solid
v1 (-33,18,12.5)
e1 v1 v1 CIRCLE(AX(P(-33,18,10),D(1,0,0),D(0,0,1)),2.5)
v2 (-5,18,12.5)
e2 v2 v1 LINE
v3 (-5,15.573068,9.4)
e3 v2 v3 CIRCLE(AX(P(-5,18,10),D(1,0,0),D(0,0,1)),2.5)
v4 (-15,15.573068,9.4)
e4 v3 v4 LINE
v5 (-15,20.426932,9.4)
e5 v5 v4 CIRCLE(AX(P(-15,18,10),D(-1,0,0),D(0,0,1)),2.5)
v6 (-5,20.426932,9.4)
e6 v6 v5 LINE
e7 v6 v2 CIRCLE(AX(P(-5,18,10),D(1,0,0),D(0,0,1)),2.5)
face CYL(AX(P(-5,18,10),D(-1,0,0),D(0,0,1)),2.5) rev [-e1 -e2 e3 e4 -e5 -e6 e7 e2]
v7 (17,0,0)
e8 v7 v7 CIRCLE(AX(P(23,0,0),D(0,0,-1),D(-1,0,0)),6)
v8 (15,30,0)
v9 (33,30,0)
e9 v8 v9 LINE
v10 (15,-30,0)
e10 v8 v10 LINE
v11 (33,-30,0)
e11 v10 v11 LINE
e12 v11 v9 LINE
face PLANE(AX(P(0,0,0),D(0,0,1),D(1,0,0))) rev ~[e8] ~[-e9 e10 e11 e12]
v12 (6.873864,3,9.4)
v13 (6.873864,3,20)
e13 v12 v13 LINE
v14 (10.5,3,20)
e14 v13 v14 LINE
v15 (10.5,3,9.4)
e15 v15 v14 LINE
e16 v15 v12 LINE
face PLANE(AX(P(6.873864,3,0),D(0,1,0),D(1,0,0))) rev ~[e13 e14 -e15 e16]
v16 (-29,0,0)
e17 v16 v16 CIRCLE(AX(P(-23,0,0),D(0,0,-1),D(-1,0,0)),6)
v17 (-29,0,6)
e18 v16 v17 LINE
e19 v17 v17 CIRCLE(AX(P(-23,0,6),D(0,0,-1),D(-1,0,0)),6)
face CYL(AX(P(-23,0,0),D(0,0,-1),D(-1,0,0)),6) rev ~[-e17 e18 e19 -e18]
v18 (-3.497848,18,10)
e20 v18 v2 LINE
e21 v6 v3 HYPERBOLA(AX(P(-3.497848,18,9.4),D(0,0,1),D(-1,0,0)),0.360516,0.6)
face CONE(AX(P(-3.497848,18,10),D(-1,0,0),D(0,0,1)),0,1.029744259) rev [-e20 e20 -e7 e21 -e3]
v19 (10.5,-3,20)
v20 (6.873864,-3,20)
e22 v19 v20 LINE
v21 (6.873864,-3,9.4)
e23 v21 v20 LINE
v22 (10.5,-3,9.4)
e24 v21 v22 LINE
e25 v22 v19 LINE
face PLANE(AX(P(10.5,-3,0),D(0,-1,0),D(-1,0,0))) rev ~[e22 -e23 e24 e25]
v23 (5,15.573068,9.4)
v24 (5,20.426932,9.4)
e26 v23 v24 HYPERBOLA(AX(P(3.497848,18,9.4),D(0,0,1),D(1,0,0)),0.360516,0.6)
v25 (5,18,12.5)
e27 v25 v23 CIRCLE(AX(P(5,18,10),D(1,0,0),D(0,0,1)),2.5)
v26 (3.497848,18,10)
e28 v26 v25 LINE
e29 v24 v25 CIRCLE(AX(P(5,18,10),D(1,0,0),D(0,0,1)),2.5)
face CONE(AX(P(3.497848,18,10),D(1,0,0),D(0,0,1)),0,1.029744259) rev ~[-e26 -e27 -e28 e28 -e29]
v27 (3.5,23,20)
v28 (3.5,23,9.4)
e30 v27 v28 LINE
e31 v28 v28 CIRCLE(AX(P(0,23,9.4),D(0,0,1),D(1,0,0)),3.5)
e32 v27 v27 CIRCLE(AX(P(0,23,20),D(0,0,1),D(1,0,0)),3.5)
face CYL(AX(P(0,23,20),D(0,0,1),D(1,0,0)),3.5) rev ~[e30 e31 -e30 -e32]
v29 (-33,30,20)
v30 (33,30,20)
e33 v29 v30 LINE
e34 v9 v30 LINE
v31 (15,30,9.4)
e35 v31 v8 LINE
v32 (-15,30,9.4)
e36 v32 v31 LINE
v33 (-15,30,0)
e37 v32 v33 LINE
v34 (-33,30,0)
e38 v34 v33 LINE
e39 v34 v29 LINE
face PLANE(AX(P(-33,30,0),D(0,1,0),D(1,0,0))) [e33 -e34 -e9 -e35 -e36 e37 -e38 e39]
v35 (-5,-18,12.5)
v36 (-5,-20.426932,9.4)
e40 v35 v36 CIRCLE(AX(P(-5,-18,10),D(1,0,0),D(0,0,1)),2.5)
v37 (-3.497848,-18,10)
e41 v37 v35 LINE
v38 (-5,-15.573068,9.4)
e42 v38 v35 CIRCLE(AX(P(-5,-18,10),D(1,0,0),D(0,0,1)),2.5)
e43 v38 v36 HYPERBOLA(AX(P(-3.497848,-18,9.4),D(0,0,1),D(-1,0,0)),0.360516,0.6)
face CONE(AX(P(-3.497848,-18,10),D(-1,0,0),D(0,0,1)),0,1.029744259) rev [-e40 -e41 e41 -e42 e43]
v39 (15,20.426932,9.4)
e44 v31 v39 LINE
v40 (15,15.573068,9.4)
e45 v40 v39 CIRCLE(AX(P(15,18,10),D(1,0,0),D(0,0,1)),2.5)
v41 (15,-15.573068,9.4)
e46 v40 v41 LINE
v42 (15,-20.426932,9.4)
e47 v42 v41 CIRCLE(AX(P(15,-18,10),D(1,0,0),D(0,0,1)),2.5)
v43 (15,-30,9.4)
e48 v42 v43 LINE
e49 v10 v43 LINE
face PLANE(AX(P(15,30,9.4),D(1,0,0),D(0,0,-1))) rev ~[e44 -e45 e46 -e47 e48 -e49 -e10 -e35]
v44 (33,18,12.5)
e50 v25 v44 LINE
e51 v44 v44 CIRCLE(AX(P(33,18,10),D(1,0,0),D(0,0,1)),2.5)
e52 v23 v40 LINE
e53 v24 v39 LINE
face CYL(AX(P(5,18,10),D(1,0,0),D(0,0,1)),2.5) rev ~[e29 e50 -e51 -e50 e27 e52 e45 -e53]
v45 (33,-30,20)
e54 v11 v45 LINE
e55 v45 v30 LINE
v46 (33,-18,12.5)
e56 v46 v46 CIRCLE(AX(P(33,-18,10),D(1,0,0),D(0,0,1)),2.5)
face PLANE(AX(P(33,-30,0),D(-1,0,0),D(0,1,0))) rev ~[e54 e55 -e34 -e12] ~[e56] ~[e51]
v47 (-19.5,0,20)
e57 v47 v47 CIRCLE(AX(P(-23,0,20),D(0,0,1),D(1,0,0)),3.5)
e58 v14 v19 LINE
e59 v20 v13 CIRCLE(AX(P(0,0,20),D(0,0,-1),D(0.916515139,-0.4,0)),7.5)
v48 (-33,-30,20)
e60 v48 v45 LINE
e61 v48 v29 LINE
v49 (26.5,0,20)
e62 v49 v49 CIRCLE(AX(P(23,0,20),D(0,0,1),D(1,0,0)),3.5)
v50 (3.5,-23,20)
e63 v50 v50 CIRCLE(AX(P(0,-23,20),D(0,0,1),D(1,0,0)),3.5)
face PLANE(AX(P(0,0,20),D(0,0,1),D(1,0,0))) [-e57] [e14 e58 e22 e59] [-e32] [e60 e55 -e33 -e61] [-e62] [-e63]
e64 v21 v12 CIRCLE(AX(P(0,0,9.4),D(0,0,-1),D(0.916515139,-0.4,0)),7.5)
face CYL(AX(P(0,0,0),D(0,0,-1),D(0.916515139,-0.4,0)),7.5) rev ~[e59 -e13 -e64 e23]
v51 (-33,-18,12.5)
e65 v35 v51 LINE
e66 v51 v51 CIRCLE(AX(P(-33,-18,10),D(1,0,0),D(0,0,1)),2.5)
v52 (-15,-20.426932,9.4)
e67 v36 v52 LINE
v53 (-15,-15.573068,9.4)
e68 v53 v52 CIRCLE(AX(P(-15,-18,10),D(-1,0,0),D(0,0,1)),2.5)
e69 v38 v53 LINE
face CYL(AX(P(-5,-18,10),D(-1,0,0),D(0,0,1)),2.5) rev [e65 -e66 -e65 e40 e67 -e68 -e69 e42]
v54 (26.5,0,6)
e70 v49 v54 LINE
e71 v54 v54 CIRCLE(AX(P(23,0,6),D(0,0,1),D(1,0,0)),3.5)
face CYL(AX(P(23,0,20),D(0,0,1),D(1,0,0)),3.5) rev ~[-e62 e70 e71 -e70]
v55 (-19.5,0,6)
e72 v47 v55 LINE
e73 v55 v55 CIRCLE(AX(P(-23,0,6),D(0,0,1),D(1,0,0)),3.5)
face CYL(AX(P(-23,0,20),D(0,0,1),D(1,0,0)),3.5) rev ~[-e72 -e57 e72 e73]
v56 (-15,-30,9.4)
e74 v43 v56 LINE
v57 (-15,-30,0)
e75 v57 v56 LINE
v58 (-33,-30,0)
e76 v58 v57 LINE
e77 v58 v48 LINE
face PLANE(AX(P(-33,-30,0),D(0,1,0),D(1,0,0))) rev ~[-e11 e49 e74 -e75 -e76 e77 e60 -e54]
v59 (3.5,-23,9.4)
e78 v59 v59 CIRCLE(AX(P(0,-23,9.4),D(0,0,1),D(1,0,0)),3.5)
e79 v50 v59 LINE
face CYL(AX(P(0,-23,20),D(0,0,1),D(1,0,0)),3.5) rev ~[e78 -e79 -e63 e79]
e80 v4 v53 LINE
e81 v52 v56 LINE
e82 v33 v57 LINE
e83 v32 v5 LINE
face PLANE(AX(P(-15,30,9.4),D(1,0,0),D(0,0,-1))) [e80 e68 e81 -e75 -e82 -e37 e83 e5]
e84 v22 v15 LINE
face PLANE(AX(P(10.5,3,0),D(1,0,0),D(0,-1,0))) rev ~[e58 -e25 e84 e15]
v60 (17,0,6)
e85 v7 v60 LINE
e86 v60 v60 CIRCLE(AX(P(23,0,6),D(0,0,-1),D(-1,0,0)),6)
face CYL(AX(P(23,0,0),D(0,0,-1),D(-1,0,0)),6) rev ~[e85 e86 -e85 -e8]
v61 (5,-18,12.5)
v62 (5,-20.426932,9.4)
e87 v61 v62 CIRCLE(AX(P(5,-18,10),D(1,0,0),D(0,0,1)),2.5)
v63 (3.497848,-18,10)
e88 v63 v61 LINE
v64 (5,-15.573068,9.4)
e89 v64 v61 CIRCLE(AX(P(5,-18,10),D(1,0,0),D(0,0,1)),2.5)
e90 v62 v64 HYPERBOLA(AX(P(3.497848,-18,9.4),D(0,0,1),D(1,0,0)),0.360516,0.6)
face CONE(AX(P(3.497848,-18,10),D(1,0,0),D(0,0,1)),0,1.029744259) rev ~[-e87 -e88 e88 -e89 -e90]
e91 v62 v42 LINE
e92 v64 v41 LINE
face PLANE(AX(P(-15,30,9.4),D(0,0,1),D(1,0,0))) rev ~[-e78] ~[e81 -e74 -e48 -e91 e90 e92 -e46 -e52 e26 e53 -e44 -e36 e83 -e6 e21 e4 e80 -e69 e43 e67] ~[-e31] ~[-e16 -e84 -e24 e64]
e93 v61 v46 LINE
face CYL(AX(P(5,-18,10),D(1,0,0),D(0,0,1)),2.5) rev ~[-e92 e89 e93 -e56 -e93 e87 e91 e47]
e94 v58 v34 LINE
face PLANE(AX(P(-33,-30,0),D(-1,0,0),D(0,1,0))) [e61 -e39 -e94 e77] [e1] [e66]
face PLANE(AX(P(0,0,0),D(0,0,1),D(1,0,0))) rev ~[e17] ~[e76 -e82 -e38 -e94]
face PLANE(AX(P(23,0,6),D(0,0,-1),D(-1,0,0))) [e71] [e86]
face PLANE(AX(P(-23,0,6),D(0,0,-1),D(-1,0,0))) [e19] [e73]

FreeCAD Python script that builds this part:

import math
import FreeCAD as App
import Part
import Sketcher
from FreeCAD import Vector
Q = App.Units.Quantity

doc = App.newDocument("Part")
params = doc.addObject("Spreadsheet::Sheet", "Params")
for row, (alias, value) in enumerate([
    ("sketch1_radius", "7.5 mm"),
    ("sketch1_width", "66 mm"),
    ("sketch1_height", "60 mm"),
    ("sketch1_height2", "6 mm"),
    ("pad1_length", "20 mm"),
    ("sketch2_width", "30 mm"),
    ("sketch2_height", "9.4 mm"),
    ("pocket1_length", "60 mm"),
    ("sketch3_width", "28 mm"),
    ("sketch3_height", "2.5 mm"),
    ("groove_angle", "360 deg"),
    ("linearpattern_pitch", "36 mm"),
    ("sketch4_width", "28 mm"),
    ("sketch4_height", "2.5 mm"),
    ("groove2_angle", "360 deg"),
    ("sketch5_diameter", "7 mm"),
    ("sketch6_diameter", "12 mm"),
    ("pocket3_length", "6 mm"),
], start=1):
    params.set(f"A{row}", alias)
    params.set(f"B{row}", "=" + value)
    params.setAlias(f"B{row}", alias)

body = doc.addObject("PartDesign::Body", "Body")

# Sketch on XY plane
sketch1 = doc.addObject("Sketcher::SketchObject", "Sketch")
body.addObject(sketch1)
sketch1.AttachmentSupport = (doc.XY_Plane, [""])
sketch1.MapMode = "FlatFace"
sketch1.addGeometry(Part.LineSegment(Vector(-33, 30, 0), Vector(-33, -30, 0)), False)
sketch1.addGeometry(Part.LineSegment(Vector(-33, -30, 0), Vector(33, -30, 0)), False)
sketch1.addGeometry(Part.LineSegment(Vector(33, -30, 0), Vector(33, 30, 0)), False)
sketch1.addGeometry(Part.LineSegment(Vector(33, 30, 0), Vector(-33, 30, 0)), False)
sketch1.addGeometry(Part.LineSegment(Vector(10.5, 3, 0), Vector(10.5, -3, 0)), False)
sketch1.addGeometry(Part.LineSegment(Vector(10.5, -3, 0), Vector(6.9, -3, 0)), False)
sketch1.addGeometry(Part.ArcOfCircle(Part.Circle(Vector(0, 0, 0), Vector(0, 0, 1), 7.5), math.radians(24), math.radians(336)), False)
sketch1.addGeometry(Part.LineSegment(Vector(6.9, 3, 0), Vector(10.5, 3, 0)), False)
sketch1.addConstraint(Sketcher.Constraint("Coincident", 0, 2, 1, 1))
sketch1.addConstraint(Sketcher.Constraint("Coincident", 1, 2, 2, 1))
sketch1.addConstraint(Sketcher.Constraint("Coincident", 2, 2, 3, 1))
sketch1.addConstraint(Sketcher.Constraint("Coincident", 3, 2, 0, 1))
sketch1.addConstraint(Sketcher.Constraint("Coincident", 4, 2, 5, 1))
sketch1.addConstraint(Sketcher.Constraint("Coincident", 5, 2, 6, 2))
sketch1.addConstraint(Sketcher.Constraint("Coincident", 6, 1, 7, 1))
sketch1.addConstraint(Sketcher.Constraint("Coincident", 7, 2, 4, 1))
sketch1.addConstraint(Sketcher.Constraint("Vertical", 0))
sketch1.addConstraint(Sketcher.Constraint("Horizontal", 1))
sketch1.addConstraint(Sketcher.Constraint("Vertical", 2))
sketch1.addConstraint(Sketcher.Constraint("Horizontal", 3))
sketch1.addConstraint(Sketcher.Constraint("Vertical", 4))
sketch1.addConstraint(Sketcher.Constraint("Horizontal", 5))
sketch1.addConstraint(Sketcher.Constraint("Horizontal", 7))
sketch1.addConstraint(Sketcher.Constraint("Coincident", 6, 3, -1, 1))
sketch1.addConstraint(Sketcher.Constraint("Symmetric", 0, 2, 2, 2, -1, 1))
sketch1.addConstraint(Sketcher.Constraint("Vertical", 5, 2, 6, 1))
sketch1.addConstraint(Sketcher.Constraint("Radius", 6, 7.5))
sketch1.addConstraint(Sketcher.Constraint("DistanceX", 1, 1, 1, 2, 66.0))
sketch1.addConstraint(Sketcher.Constraint("DistanceY", 0, 2, 0, 1, 60.0))
sketch1.addConstraint(Sketcher.Constraint("DistanceY", 4, 2, 4, 1, 6.0))
sketch1.addConstraint(Sketcher.Constraint("DistanceX", -1, 1, 4, 2, 10.5))
sketch1.setExpression("Constraints[18]", "Params.sketch1_radius")
sketch1.setExpression("Constraints[19]", "Params.sketch1_width")
sketch1.setExpression("Constraints[20]", "Params.sketch1_height")
sketch1.setExpression("Constraints[21]", "Params.sketch1_height2")
pad1 = doc.addObject("PartDesign::Pad", "Pad")
body.addObject(pad1)
pad1.Profile = sketch1
pad1.setExpression("Length", "Params.pad1_length")

# Sketch on XZ plane
sketch2 = doc.addObject("Sketcher::SketchObject", "Sketch001")
body.addObject(sketch2)
sketch2.AttachmentSupport = (doc.XZ_Plane, [""])
sketch2.MapMode = "FlatFace"
sketch2.AttachmentOffset = App.Placement(Vector(0, 0, -30), App.Rotation())
sketch2.addGeometry(Part.LineSegment(Vector(-15, 0, 0), Vector(-15, 9, 0)), False)
sketch2.addGeometry(Part.LineSegment(Vector(-15, 9, 0), Vector(15, 9, 0)), False)
sketch2.addGeometry(Part.LineSegment(Vector(15, 9, 0), Vector(15, 0, 0)), False)
sketch2.addGeometry(Part.LineSegment(Vector(15, 0, 0), Vector(-15, 0, 0)), False)
sketch2.addConstraint(Sketcher.Constraint("Coincident", 0, 2, 1, 1))
sketch2.addConstraint(Sketcher.Constraint("Coincident", 1, 2, 2, 1))
sketch2.addConstraint(Sketcher.Constraint("Coincident", 2, 2, 3, 1))
sketch2.addConstraint(Sketcher.Constraint("Coincident", 3, 2, 0, 1))
sketch2.addConstraint(Sketcher.Constraint("Vertical", 0))
sketch2.addConstraint(Sketcher.Constraint("Horizontal", 1))
sketch2.addConstraint(Sketcher.Constraint("Vertical", 2))
sketch2.addConstraint(Sketcher.Constraint("Horizontal", 3))
sketch2.addConstraint(Sketcher.Constraint("Symmetric", 2, 2, 3, 2, -1, 1))
sketch2.addConstraint(Sketcher.Constraint("DistanceX", 1, 1, 1, 2, 30.0))
sketch2.addConstraint(Sketcher.Constraint("DistanceY", 0, 1, 0, 2, 9.4))
sketch2.setExpression("Constraints[9]", "Params.sketch2_width")
sketch2.setExpression("Constraints[10]", "Params.sketch2_height")
pocket1 = doc.addObject("PartDesign::Pocket", "Pocket")
body.addObject(pocket1)
pocket1.Profile = sketch2
pocket1.setExpression("Length", "Params.pocket1_length")
pocket1.Reversed = True

# Sketch on XZ plane
sketch3 = doc.addObject("Sketcher::SketchObject", "Sketch002")
body.addObject(sketch3)
sketch3.AttachmentSupport = (doc.XZ_Plane, [""])
sketch3.MapMode = "FlatFace"
sketch3.AttachmentOffset = App.Placement(Vector(0, 0, -18), App.Rotation())
sketch3.addGeometry(Part.LineSegment(Vector(-3.5, 10, 0), Vector(-33, 10, 0)), False)
sketch3.addGeometry(Part.LineSegment(Vector(-33, 10, 0), Vector(-33, 12.5, 0)), False)
sketch3.addGeometry(Part.LineSegment(Vector(-33, 12.5, 0), Vector(-5, 12.5, 0)), False)
sketch3.addGeometry(Part.LineSegment(Vector(-5, 12.5, 0), Vector(-3.5, 10, 0)), False)
sketch3.addGeometry(Part.LineSegment(Vector(-33, 10, 0), Vector(-3.5, 10, 0)), True)  # axis
sketch3.addConstraint(Sketcher.Constraint("Coincident", 0, 2, 1, 1))
sketch3.addConstraint(Sketcher.Constraint("Coincident", 1, 2, 2, 1))
sketch3.addConstraint(Sketcher.Constraint("Coincident", 2, 2, 3, 1))
sketch3.addConstraint(Sketcher.Constraint("Coincident", 3, 2, 0, 1))
sketch3.addConstraint(Sketcher.Constraint("Horizontal", 0))
sketch3.addConstraint(Sketcher.Constraint("Vertical", 1))
sketch3.addConstraint(Sketcher.Constraint("Horizontal", 2))
sketch3.addConstraint(Sketcher.Constraint("Horizontal", 4))
sketch3.addConstraint(Sketcher.Constraint("Coincident", 4, 1, 0, 2))
sketch3.addConstraint(Sketcher.Constraint("Equal", 0, 4))
sketch3.addConstraint(Sketcher.Constraint("DistanceX", 2, 1, 2, 2, 28.0))
sketch3.addConstraint(Sketcher.Constraint("Angle", 3, Q("-59 deg")))
sketch3.addConstraint(Sketcher.Constraint("DistanceY", 1, 1, 1, 2, 2.5))
sketch3.addConstraint(Sketcher.Constraint("DistanceX", 0, 2, -1, 1, 33.0))
sketch3.addConstraint(Sketcher.Constraint("DistanceY", -1, 1, 0, 2, 10.0))
sketch3.setExpression("Constraints[10]", "Params.sketch3_width")
sketch3.setExpression("Constraints[12]", "Params.sketch3_height")
groove = doc.addObject("PartDesign::Groove", "Groove")
body.addObject(groove)
groove.Profile = sketch3
groove.ReferenceAxis = (sketch3, ["Axis0"])
groove.setExpression("Angle", "Params.groove_angle")
doc.recompute()

linearpattern = doc.addObject("PartDesign::LinearPattern", "LinearPattern")
body.addObject(linearpattern)
linearpattern.Originals = [groove]
linearpattern.Direction = (doc.Y_Axis, [""])
linearpattern.Mode = "offset"
linearpattern.setExpression("Offset", "Params.linearpattern_pitch")
linearpattern.Occurrences = 2
linearpattern.Reversed = True
body.Tip = linearpattern
doc.recompute()

mirrored = doc.addObject("PartDesign::Mirrored", "Mirrored")
body.addObject(mirrored)
mirrored.Originals = [groove]
mirrored.MirrorPlane = (doc.YZ_Plane, [""])
body.Tip = mirrored

# Sketch on XZ plane
sketch4 = doc.addObject("Sketcher::SketchObject", "Sketch003")
body.addObject(sketch4)
sketch4.AttachmentSupport = (doc.XZ_Plane, [""])
sketch4.MapMode = "FlatFace"
sketch4.AttachmentOffset = App.Placement(Vector(0, 0, 18), App.Rotation())
sketch4.addGeometry(Part.LineSegment(Vector(33, 10, 0), Vector(3.5, 10, 0)), False)
sketch4.addGeometry(Part.LineSegment(Vector(3.5, 10, 0), Vector(5, 12.5, 0)), False)
sketch4.addGeometry(Part.LineSegment(Vector(5, 12.5, 0), Vector(33, 12.5, 0)), False)
sketch4.addGeometry(Part.LineSegment(Vector(33, 12.5, 0), Vector(33, 10, 0)), False)
sketch4.addGeometry(Part.LineSegment(Vector(3.5, 10, 0), Vector(33, 10, 0)), True)  # axis
sketch4.addConstraint(Sketcher.Constraint("Coincident", 0, 2, 1, 1))
sketch4.addConstraint(Sketcher.Constraint("Coincident", 1, 2, 2, 1))
sketch4.addConstraint(Sketcher.Constraint("Coincident", 2, 2, 3, 1))
sketch4.addConstraint(Sketcher.Constraint("Coincident", 3, 2, 0, 1))
sketch4.addConstraint(Sketcher.Constraint("Horizontal", 0))
sketch4.addConstraint(Sketcher.Constraint("Horizontal", 2))
sketch4.addConstraint(Sketcher.Constraint("Vertical", 3))
sketch4.addConstraint(Sketcher.Constraint("Horizontal", 4))
sketch4.addConstraint(Sketcher.Constraint("Coincident", 4, 1, 0, 2))
sketch4.addConstraint(Sketcher.Constraint("Vertical", 2, 2, 4, 2))
sketch4.addConstraint(Sketcher.Constraint("DistanceX", 2, 1, 2, 2, 28.0))
sketch4.addConstraint(Sketcher.Constraint("Angle", 1, Q("59 deg")))
sketch4.addConstraint(Sketcher.Constraint("DistanceY", 3, 2, 3, 1, 2.5))
sketch4.addConstraint(Sketcher.Constraint("DistanceY", -1, 1, 0, 2, 10.0))
sketch4.addConstraint(Sketcher.Constraint("DistanceX", -1, 1, 1, 2, 5.0))
sketch4.setExpression("Constraints[10]", "Params.sketch4_width")
sketch4.setExpression("Constraints[12]", "Params.sketch4_height")
groove2 = doc.addObject("PartDesign::Groove", "Groove001")
body.addObject(groove2)
groove2.Profile = sketch4
groove2.ReferenceAxis = (sketch4, ["Axis0"])
groove2.setExpression("Angle", "Params.groove2_angle")

# Sketch on XY plane
sketch5 = doc.addObject("Sketcher::SketchObject", "Sketch004")
body.addObject(sketch5)
sketch5.AttachmentSupport = (doc.XY_Plane, [""])
sketch5.MapMode = "FlatFace"
sketch5.AttachmentOffset = App.Placement(Vector(0, 0, 20), App.Rotation())
sketch5.addGeometry(Part.Circle(Vector(0, 23, 0), Vector(0, 0, 1), 3.5), False)
sketch5.addGeometry(Part.Circle(Vector(23, 0, 0), Vector(0, 0, 1), 3.5), False)
sketch5.addGeometry(Part.Circle(Vector(0, -23, 0), Vector(0, 0, 1), 3.5), False)
sketch5.addGeometry(Part.Circle(Vector(-23, 0, 0), Vector(0, 0, 1), 3.5), False)
sketch5.addConstraint(Sketcher.Constraint("Equal", 0, 1))
sketch5.addConstraint(Sketcher.Constraint("Equal", 1, 2))
sketch5.addConstraint(Sketcher.Constraint("Equal", 2, 3))
sketch5.addConstraint(Sketcher.Constraint("Symmetric", 0, 3, 2, 3, -1, 1))
sketch5.addConstraint(Sketcher.Constraint("Symmetric", 1, 3, 3, 3, -1, 1))
sketch5.addConstraint(Sketcher.Constraint("PointOnObject", 0, 3, -2))
sketch5.addConstraint(Sketcher.Constraint("PointOnObject", 1, 3, -1))
sketch5.addConstraint(Sketcher.Constraint("Diameter", 0, 7.0))
sketch5.addConstraint(Sketcher.Constraint("DistanceY", -1, 1, 0, 3, 23.0))
sketch5.addConstraint(Sketcher.Constraint("DistanceX", -1, 1, 1, 3, 23.0))
sketch5.setExpression("Constraints[7]", "Params.sketch5_diameter")
pocket2 = doc.addObject("PartDesign::Pocket", "Pocket001")
body.addObject(pocket2)
pocket2.Profile = sketch5
pocket2.Type = "ThroughAll"

# Sketch on XY plane
sketch6 = doc.addObject("Sketcher::SketchObject", "Sketch005")
body.addObject(sketch6)
sketch6.AttachmentSupport = (doc.XY_Plane, [""])
sketch6.MapMode = "FlatFace"
sketch6.addGeometry(Part.Circle(Vector(-23, 0, 0), Vector(0, 0, 1), 6), False)
sketch6.addGeometry(Part.Circle(Vector(23, 0, 0), Vector(0, 0, 1), 6), False)
sketch6.addConstraint(Sketcher.Constraint("Equal", 0, 1))
sketch6.addConstraint(Sketcher.Constraint("Symmetric", 0, 3, 1, 3, -1, 1))
sketch6.addConstraint(Sketcher.Constraint("PointOnObject", 0, 3, -1))
sketch6.addConstraint(Sketcher.Constraint("Diameter", 0, 12.0))
sketch6.addConstraint(Sketcher.Constraint("DistanceX", 0, 3, -1, 1, 23.0))
sketch6.setExpression("Constraints[3]", "Params.sketch6_diameter")
pocket3 = doc.addObject("PartDesign::Pocket", "Pocket002")
body.addObject(pocket3)
pocket3.Profile = sketch6
pocket3.setExpression("Length", "Params.pocket3_length")
pocket3.Reversed = True

doc.recompute()
